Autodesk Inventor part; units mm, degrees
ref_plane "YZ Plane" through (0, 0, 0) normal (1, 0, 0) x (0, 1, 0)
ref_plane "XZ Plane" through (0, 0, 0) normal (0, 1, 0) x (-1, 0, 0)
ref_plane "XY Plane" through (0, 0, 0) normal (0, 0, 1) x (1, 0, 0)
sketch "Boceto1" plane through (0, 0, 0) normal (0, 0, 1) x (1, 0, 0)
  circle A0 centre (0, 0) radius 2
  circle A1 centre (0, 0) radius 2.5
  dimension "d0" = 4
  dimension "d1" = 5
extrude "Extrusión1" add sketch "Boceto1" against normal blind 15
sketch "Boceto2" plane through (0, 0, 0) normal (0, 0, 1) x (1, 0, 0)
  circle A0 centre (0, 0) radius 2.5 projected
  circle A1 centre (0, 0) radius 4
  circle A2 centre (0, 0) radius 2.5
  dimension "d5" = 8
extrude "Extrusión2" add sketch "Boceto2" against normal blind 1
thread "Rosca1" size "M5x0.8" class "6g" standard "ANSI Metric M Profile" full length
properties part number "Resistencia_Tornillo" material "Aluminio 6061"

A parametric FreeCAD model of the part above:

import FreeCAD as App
import Part
import Sketcher
Q = App.Units.Quantity

doc = App.newDocument("Part")
params = doc.addObject("Spreadsheet::Sheet", "Params")
for row, (alias, value) in enumerate([
    ("sketch1_diameter", "5 mm"),
    ("sketch1_diameter2", "4 mm"),
    ("pad1_length", "15 mm"),
    ("sketch2_diameter", "8 mm"),
    ("sketch2_diameter2", "5 mm"),
    ("pad2_length", "1 mm"),
], start=1):
    params.set(f"A{row}", alias)
    params.set(f"B{row}", "=" + value)
    params.setAlias(f"B{row}", alias)

body = doc.addObject("PartDesign::Body", "Body")

# Sketch on XY plane
sketch1 = body.newObject("Sketcher::SketchObject", "Sketch")
sketch1.AttachmentSupport = (doc.getObject("XY_Plane"), [""])
sketch1.MapMode = "FlatFace"
sketch1.addGeometry([
    Part.Circle(App.Vector(0, 0, 0), App.Vector(0, 0, 1), 2.5),
    Part.Circle(App.Vector(0, 0, 0), App.Vector(0, 0, 1), 2),
], False)
sketch1.addConstraint([
    Sketcher.Constraint("Coincident", 0, 3, -1, 1),
    Sketcher.Constraint("Coincident", 1, 3, -1, 1),
    Sketcher.Constraint("Diameter", 0, Q("5 mm")),
    Sketcher.Constraint("Diameter", 1, Q("4 mm")),
])
sketch1.setExpression("Constraints[2]", "Params.sketch1_diameter")
sketch1.setExpression("Constraints[3]", "Params.sketch1_diameter2")
pad1 = body.newObject("PartDesign::Pad", "Pad")
pad1.Profile = sketch1
pad1.setExpression("Length", "Params.pad1_length")
pad1.Reversed = True

# Sketch on XY plane
sketch2 = body.newObject("Sketcher::SketchObject", "Sketch001")
sketch2.AttachmentSupport = (doc.getObject("XY_Plane"), [""])
sketch2.MapMode = "FlatFace"
sketch2.addGeometry([
    Part.Circle(App.Vector(0, 0, 0), App.Vector(0, 0, 1), 4),
    Part.Circle(App.Vector(0, 0, 0), App.Vector(0, 0, 1), 2.5),
], False)
sketch2.addConstraint([
    Sketcher.Constraint("Coincident", 0, 3, -1, 1),
    Sketcher.Constraint("Coincident", 1, 3, -1, 1),
    Sketcher.Constraint("Diameter", 0, Q("8 mm")),
    Sketcher.Constraint("Diameter", 1, Q("5 mm")),
])
sketch2.setExpression("Constraints[2]", "Params.sketch2_diameter")
sketch2.setExpression("Constraints[3]", "Params.sketch2_diameter2")
pad2 = body.newObject("PartDesign::Pad", "Pad001")
pad2.Profile = sketch2
pad2.setExpression("Length", "Params.pad2_length")
pad2.Reversed = True

doc.recompute()
